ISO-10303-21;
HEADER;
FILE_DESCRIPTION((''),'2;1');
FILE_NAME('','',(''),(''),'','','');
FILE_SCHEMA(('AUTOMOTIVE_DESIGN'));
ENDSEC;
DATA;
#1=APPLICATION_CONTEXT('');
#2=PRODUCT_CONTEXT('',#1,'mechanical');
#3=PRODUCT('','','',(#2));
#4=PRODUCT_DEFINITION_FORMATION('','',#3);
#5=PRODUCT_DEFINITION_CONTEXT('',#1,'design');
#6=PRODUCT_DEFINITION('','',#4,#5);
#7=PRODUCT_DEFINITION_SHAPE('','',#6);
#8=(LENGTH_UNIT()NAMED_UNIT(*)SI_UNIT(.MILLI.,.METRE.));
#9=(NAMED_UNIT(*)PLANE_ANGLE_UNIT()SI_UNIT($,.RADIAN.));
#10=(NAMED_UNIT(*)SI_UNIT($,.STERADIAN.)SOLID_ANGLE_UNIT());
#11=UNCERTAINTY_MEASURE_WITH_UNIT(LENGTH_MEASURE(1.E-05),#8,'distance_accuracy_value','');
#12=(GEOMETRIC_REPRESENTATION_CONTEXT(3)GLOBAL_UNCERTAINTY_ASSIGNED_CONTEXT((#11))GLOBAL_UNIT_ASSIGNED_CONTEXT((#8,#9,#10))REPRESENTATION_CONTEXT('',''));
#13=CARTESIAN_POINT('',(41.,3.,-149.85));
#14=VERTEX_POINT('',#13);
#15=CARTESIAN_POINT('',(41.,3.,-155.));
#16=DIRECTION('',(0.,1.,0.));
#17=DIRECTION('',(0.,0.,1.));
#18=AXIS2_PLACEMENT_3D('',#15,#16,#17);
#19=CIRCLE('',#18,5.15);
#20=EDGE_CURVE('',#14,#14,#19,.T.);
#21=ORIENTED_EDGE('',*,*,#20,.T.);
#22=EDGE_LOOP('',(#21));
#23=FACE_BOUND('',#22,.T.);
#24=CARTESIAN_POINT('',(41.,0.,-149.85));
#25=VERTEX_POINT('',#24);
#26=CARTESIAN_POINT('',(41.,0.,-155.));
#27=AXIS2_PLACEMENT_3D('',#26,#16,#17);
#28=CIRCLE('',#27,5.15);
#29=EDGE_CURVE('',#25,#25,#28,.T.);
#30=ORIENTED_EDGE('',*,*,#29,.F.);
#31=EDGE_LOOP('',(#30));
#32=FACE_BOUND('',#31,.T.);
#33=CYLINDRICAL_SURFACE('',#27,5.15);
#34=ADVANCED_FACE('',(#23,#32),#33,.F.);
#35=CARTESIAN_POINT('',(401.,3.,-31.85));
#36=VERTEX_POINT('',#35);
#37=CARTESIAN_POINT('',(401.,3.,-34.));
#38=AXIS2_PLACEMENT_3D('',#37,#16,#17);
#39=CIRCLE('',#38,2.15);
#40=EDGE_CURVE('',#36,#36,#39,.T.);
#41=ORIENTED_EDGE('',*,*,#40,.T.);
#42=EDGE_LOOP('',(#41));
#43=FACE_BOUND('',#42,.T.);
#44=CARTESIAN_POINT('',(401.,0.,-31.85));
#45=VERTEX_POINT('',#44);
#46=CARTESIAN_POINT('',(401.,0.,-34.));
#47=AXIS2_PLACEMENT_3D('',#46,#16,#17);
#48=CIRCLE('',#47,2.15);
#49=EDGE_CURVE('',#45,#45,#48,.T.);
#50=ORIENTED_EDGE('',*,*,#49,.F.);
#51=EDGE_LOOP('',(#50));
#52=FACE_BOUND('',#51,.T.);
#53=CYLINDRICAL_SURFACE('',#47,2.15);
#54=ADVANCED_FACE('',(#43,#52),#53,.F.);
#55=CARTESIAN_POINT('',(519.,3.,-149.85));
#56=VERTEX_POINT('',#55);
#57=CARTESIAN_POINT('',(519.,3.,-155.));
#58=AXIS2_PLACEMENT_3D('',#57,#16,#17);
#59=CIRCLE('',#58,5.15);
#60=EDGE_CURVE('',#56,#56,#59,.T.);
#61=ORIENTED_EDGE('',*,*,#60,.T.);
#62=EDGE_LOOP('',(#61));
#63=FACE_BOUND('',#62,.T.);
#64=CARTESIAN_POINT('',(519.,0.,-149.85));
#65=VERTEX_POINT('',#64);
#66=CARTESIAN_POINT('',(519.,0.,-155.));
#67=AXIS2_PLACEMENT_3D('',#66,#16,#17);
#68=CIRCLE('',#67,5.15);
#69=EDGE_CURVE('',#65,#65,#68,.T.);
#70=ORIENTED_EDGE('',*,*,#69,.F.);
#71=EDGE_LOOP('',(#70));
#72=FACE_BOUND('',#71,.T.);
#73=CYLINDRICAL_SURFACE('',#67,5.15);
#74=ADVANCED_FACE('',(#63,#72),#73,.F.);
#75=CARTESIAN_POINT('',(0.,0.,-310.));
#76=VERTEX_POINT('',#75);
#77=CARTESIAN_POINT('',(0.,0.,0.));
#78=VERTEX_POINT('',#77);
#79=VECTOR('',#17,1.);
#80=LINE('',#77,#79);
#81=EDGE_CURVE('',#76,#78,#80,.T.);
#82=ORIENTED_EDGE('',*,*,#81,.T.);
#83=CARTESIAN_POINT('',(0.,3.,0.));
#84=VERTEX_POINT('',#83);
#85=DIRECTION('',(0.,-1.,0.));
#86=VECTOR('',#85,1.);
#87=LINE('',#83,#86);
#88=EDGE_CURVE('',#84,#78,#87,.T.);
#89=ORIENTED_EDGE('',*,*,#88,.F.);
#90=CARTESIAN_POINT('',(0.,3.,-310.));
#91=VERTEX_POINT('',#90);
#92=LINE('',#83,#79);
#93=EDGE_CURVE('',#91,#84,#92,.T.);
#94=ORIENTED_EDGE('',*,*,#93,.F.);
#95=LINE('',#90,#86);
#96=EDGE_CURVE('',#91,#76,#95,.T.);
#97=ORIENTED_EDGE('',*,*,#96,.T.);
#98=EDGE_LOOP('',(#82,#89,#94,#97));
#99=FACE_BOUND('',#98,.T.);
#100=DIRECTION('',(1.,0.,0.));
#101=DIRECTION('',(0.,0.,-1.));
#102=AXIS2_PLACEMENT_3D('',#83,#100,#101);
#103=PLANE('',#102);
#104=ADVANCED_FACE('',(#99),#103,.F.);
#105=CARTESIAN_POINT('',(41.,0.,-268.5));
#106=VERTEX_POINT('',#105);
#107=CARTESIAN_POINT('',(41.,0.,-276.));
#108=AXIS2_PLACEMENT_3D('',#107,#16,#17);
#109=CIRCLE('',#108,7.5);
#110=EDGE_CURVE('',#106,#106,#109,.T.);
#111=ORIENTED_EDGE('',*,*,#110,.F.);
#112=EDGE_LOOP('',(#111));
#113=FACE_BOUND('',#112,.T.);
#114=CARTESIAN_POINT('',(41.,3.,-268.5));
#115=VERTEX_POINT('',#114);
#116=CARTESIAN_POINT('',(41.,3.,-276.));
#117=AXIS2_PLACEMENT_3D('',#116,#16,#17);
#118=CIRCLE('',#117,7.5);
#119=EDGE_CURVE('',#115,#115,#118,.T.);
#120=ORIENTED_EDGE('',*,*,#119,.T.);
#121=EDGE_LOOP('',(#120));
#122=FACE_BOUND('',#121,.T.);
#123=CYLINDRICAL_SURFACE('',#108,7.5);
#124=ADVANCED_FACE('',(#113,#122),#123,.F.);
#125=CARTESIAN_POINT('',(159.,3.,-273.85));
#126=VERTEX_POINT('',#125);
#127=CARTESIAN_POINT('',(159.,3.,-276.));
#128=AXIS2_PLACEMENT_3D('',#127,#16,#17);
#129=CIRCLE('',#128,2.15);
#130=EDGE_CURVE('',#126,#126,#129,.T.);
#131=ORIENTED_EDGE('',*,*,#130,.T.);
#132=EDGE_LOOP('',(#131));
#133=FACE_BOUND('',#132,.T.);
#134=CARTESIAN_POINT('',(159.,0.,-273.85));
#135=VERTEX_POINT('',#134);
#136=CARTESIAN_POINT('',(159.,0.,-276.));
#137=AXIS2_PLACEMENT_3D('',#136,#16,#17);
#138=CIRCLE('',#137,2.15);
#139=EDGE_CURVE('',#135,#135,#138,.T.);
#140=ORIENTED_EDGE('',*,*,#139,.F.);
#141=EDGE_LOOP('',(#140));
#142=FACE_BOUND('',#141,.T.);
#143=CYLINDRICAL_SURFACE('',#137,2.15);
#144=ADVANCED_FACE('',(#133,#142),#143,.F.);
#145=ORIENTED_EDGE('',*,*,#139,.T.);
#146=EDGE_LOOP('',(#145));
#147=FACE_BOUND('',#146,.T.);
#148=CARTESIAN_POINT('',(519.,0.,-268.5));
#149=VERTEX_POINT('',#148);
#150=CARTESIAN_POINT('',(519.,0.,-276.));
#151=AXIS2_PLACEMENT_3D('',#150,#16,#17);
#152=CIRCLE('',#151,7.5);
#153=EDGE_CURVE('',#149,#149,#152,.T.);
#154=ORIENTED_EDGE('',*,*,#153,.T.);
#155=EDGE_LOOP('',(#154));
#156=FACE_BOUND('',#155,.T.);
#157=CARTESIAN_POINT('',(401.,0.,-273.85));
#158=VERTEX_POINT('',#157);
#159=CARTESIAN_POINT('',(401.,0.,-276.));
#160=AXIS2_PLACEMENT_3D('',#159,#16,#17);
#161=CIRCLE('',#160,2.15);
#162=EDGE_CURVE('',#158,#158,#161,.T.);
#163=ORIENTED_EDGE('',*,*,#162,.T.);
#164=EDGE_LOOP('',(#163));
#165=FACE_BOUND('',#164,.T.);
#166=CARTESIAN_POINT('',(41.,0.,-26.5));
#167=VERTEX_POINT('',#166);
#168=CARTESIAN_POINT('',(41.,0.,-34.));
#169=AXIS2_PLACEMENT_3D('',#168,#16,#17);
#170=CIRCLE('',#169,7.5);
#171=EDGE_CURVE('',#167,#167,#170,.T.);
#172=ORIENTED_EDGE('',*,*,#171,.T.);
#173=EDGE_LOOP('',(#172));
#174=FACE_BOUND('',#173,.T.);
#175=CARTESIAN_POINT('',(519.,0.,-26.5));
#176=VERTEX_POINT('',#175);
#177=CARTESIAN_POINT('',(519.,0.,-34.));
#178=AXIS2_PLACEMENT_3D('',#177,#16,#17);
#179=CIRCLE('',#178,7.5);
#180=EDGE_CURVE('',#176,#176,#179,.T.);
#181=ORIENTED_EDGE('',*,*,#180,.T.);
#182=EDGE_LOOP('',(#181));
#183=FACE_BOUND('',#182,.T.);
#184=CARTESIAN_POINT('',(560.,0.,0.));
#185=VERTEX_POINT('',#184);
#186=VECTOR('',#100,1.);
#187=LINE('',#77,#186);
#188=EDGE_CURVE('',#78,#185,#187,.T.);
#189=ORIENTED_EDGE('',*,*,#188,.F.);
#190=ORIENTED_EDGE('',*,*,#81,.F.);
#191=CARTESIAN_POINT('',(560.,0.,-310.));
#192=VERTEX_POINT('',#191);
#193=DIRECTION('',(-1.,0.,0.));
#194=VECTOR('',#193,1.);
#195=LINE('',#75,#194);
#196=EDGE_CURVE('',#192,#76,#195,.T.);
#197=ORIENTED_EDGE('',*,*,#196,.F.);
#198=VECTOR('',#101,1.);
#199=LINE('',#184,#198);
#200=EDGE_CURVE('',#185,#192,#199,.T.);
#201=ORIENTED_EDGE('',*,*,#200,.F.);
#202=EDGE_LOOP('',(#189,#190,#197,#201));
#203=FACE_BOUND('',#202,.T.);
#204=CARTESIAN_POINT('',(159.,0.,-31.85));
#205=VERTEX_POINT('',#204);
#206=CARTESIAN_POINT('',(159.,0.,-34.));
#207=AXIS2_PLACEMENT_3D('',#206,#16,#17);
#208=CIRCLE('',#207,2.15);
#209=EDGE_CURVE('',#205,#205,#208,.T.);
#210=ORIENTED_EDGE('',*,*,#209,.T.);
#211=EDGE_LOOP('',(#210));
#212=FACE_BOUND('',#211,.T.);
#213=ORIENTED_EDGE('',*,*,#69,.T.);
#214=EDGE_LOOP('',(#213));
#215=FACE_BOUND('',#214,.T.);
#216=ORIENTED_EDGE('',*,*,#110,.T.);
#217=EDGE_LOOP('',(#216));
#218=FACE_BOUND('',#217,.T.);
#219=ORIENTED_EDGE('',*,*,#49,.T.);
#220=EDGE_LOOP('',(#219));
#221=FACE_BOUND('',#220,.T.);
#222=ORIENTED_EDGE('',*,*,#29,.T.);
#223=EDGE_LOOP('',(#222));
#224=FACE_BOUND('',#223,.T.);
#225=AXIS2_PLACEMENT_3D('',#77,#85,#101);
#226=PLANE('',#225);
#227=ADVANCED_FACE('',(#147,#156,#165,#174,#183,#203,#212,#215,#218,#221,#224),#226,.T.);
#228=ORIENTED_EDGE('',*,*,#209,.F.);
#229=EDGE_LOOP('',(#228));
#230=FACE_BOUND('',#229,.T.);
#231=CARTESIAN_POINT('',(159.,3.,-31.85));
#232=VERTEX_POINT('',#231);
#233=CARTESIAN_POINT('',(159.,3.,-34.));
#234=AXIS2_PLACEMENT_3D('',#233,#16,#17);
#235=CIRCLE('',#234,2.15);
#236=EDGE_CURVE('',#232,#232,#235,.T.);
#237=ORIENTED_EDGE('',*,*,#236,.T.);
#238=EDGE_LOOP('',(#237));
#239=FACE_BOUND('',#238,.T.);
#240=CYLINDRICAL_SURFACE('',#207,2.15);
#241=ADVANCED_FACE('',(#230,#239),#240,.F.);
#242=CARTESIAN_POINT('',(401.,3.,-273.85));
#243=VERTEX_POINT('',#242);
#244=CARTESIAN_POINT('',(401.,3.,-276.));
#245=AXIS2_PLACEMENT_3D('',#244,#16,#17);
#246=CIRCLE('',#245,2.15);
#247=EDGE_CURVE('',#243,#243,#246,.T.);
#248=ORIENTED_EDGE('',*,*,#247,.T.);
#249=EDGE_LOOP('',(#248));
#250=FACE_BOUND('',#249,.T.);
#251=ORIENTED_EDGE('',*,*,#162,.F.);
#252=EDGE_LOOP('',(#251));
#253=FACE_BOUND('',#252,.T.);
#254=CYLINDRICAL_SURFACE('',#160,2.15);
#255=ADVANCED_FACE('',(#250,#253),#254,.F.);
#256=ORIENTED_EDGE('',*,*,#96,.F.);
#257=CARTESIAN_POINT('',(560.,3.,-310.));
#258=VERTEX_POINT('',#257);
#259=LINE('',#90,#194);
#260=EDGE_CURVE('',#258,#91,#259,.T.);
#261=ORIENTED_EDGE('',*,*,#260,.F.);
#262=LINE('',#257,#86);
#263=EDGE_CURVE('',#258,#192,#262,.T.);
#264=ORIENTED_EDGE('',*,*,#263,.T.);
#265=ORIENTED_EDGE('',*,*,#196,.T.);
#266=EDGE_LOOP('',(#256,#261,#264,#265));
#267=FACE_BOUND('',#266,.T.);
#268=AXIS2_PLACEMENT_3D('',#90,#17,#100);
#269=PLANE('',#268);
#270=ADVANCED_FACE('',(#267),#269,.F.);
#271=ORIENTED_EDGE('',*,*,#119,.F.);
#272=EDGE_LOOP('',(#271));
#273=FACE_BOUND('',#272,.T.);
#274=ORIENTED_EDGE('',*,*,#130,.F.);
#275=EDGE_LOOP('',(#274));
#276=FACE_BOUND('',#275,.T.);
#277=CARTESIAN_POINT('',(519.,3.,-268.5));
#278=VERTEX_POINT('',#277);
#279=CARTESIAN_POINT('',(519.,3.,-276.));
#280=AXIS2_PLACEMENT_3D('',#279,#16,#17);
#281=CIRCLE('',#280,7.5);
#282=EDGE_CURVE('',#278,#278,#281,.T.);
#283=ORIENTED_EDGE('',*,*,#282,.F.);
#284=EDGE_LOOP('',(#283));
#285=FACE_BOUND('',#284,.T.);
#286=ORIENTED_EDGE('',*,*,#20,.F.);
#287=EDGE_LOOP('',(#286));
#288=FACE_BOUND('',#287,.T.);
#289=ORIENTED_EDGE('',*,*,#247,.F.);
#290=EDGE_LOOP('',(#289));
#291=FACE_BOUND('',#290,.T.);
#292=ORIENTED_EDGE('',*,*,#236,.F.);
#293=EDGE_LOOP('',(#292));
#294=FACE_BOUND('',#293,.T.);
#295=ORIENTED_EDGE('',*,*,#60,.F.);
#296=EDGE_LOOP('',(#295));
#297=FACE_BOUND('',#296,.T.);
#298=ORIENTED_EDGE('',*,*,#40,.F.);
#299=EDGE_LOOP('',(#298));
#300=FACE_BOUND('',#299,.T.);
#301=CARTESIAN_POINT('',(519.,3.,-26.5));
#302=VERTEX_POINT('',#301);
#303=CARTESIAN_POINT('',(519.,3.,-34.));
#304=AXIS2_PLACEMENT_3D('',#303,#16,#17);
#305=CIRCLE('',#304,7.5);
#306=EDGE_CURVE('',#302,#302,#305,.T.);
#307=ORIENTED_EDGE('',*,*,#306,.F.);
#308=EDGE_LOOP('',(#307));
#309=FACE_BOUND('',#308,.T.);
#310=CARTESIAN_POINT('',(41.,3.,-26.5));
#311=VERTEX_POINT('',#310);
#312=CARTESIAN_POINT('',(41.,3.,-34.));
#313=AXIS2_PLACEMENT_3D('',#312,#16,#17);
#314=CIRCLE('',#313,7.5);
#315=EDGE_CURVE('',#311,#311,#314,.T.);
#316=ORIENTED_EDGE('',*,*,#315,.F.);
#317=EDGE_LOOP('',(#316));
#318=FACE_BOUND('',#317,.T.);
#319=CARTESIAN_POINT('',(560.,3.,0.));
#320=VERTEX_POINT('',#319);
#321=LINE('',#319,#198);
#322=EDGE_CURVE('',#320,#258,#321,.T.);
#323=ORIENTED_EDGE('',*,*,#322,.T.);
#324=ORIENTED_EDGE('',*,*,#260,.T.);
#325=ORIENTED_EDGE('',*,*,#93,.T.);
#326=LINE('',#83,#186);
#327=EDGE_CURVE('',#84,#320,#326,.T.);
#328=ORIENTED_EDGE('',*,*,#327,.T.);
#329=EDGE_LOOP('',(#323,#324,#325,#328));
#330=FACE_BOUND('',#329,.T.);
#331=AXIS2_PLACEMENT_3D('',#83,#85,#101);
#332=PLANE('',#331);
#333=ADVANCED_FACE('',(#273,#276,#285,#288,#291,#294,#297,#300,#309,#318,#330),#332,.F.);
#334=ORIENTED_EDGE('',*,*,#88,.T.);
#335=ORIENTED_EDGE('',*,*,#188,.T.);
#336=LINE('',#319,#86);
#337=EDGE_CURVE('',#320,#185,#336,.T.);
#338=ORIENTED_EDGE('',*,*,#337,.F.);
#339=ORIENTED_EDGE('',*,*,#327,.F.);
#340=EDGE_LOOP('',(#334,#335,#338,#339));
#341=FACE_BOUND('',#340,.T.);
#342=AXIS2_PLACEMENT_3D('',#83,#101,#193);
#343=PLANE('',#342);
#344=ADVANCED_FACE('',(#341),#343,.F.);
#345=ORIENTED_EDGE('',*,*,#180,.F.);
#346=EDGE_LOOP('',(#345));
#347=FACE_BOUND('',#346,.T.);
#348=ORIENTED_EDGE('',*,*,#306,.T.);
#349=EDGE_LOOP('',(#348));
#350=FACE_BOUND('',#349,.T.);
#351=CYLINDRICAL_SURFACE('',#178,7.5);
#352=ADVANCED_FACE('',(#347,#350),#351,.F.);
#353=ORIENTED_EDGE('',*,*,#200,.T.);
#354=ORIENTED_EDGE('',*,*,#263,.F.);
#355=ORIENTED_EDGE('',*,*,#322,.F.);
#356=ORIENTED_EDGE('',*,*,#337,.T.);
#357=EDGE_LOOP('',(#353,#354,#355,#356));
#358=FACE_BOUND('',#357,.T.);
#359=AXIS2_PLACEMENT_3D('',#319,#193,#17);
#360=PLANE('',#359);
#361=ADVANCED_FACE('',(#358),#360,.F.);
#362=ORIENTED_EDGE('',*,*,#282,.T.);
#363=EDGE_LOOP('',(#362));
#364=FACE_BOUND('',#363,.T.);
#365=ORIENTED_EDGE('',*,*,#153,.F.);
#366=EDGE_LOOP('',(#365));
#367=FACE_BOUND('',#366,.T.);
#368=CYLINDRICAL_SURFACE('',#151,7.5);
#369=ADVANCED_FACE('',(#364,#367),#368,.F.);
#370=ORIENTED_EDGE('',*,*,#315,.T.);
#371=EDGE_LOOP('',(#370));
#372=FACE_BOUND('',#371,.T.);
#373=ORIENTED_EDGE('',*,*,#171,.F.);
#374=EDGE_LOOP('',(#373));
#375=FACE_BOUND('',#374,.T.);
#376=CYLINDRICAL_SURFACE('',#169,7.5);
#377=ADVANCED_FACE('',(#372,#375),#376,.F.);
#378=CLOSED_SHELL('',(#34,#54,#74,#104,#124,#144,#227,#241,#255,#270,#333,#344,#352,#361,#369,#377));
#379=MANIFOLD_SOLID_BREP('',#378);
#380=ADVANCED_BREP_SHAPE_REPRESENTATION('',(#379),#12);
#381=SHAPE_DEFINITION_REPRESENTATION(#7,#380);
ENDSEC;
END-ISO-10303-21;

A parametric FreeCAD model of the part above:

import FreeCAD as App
import Part
import Sketcher

V = App.Vector
Q = App.Units.Quantity

doc = App.newDocument("Part")
body = doc.addObject("PartDesign::Body", "Body")

# Sketch on XZ plane
sketch1 = body.newObject("Sketcher::SketchObject", "Sketch")
sketch1.AttachmentSupport = (doc.getObject("XZ_Plane"), [""])
sketch1.MapMode = "FlatFace"
sketch1.addGeometry(Part.LineSegment(V(0, -310, 0), V(0, 0, 0)), False)
sketch1.addGeometry(Part.LineSegment(V(0, 0, 0), V(560, 0, 0)), False)
sketch1.addGeometry(Part.LineSegment(V(560, 0, 0), V(560, -310, 0)), False)
sketch1.addGeometry(Part.LineSegment(V(560, -310, 0), V(0, -310, 0)), False)
sketch1.addConstraint(Sketcher.Constraint("Coincident", 0, 2, 1, 1))
sketch1.addConstraint(Sketcher.Constraint("Coincident", 1, 2, 2, 1))
sketch1.addConstraint(Sketcher.Constraint("Coincident", 2, 2, 3, 1))
sketch1.addConstraint(Sketcher.Constraint("Coincident", 3, 2, 0, 1))
sketch1.addConstraint(Sketcher.Constraint("Vertical", 0))
sketch1.addConstraint(Sketcher.Constraint("Horizontal", 1))
sketch1.addConstraint(Sketcher.Constraint("Vertical", 2))
sketch1.addConstraint(Sketcher.Constraint("Horizontal", 3))
sketch1.addConstraint(Sketcher.Constraint("Coincident", 0, 2, -1, 1))
sketch1.addConstraint(Sketcher.Constraint("DistanceX", 1, 1, 1, 2, Q("560 mm")))
sketch1.addConstraint(Sketcher.Constraint("DistanceY", 0, 1, 0, 2, Q("310 mm")))
pad1 = body.newObject("PartDesign::Pad", "Pad")
pad1.Profile = sketch1
pad1.Length = 3
pad1.Reversed = True

# Sketch on XZ plane
sketch2 = body.newObject("Sketcher::SketchObject", "Sketch001")
sketch2.AttachmentSupport = (doc.getObject("XZ_Plane"), [""])
sketch2.MapMode = "FlatFace"
sketch2.AttachmentOffset = App.Placement(V(0, 0, -3), App.Rotation())
sketch2.addGeometry(Part.Circle(V(159, -276, 0), V(0, 0, 1), 2.1), False)
sketch2.addGeometry(Part.Circle(V(401, -276, 0), V(0, 0, 1), 2.1), False)
sketch2.addGeometry(Part.Circle(V(401, -34, 0), V(0, 0, 1), 2.1), False)
sketch2.addGeometry(Part.Circle(V(159, -34, 0), V(0, 0, 1), 2.1), False)
sketch2.addConstraint(Sketcher.Constraint("Equal", 0, 1))
sketch2.addConstraint(Sketcher.Constraint("Equal", 1, 2))
sketch2.addConstraint(Sketcher.Constraint("Equal", 2, 3))
sketch2.addConstraint(Sketcher.Constraint("Horizontal", 0, 3, 1, 3))
sketch2.addConstraint(Sketcher.Constraint("Horizontal", 2, 3, 3, 3))
sketch2.addConstraint(Sketcher.Constraint("Vertical", 1, 3, 2, 3))
sketch2.addConstraint(Sketcher.Constraint("Vertical", 0, 3, 3, 3))
sketch2.addConstraint(Sketcher.Constraint("Diameter", 0, Q("4.3 mm")))
sketch2.addConstraint(Sketcher.Constraint("DistanceX", -1, 1, 0, 3, Q("159 mm")))
sketch2.addConstraint(Sketcher.Constraint("DistanceY", 0, 3, -1, 1, Q("276 mm")))
sketch2.addConstraint(Sketcher.Constraint("DistanceX", -1, 1, 1, 3, Q("401 mm")))
sketch2.addConstraint(Sketcher.Constraint("DistanceY", 2, 3, -1, 1, Q("34 mm")))
pocket1 = body.newObject("PartDesign::Pocket", "Pocket")
pocket1.Profile = sketch2
pocket1.Type = "ThroughAll"
pocket1.Reversed = True

# Sketch on XZ plane
sketch3 = body.newObject("Sketcher::SketchObject", "Sketch002")
sketch3.AttachmentSupport = (doc.getObject("XZ_Plane"), [""])
sketch3.MapMode = "FlatFace"
sketch3.AttachmentOffset = App.Placement(V(0, 0, -3), App.Rotation())
sketch3.addGeometry(Part.Circle(V(41, -155, 0), V(0, 0, 1), 5), False)
sketch3.addGeometry(Part.Circle(V(519, -155, 0), V(0, 0, 1), 5), False)
sketch3.addConstraint(Sketcher.Constraint("Equal", 0, 1))
sketch3.addConstraint(Sketcher.Constraint("Horizontal", 0, 3, 1, 3))
sketch3.addConstraint(Sketcher.Constraint("Diameter", 0, Q("10.3 mm")))
sketch3.addConstraint(Sketcher.Constraint("DistanceX", -1, 1, 0, 3, Q("41 mm")))
sketch3.addConstraint(Sketcher.Constraint("DistanceY", 0, 3, -1, 1, Q("155 mm")))
sketch3.addConstraint(Sketcher.Constraint("DistanceX", -1, 1, 1, 3, Q("519 mm")))
pocket2 = body.newObject("PartDesign::Pocket", "Pocket001")
pocket2.Profile = sketch3
pocket2.Type = "ThroughAll"
pocket2.Reversed = True

# Sketch on XZ plane
sketch4 = body.newObject("Sketcher::SketchObject", "Sketch003")
sketch4.AttachmentSupport = (doc.getObject("XZ_Plane"), [""])
sketch4.MapMode = "FlatFace"
sketch4.AttachmentOffset = App.Placement(V(0, 0, -3), App.Rotation())
sketch4.addGeometry(Part.Circle(V(41, -34, 0), V(0, 0, 1), 8), False)
sketch4.addGeometry(Part.Circle(V(41, -276, 0), V(0, 0, 1), 8), False)
sketch4.addGeometry(Part.Circle(V(519, -276, 0), V(0, 0, 1), 8), False)
sketch4.addGeometry(Part.Circle(V(519, -34, 0), V(0, 0, 1), 8), False)
sketch4.addConstraint(Sketcher.Constraint("Equal", 0, 1))
sketch4.addConstraint(Sketcher.Constraint("Equal", 1, 2))
sketch4.addConstraint(Sketcher.Constraint("Equal", 2, 3))
sketch4.addConstraint(Sketcher.Constraint("Horizontal", 1, 3, 2, 3))
sketch4.addConstraint(Sketcher.Constraint("Horizontal", 0, 3, 3, 3))
sketch4.addConstraint(Sketcher.Constraint("Vertical", 0, 3, 1, 3))
sketch4.addConstraint(Sketcher.Constraint("Vertical", 2, 3, 3, 3))
sketch4.addConstraint(Sketcher.Constraint("Diameter", 0, Q("15 mm")))
sketch4.addConstraint(Sketcher.Constraint("DistanceX", -1, 1, 0, 3, Q("41 mm")))
sketch4.addConstraint(Sketcher.Constraint("DistanceY", 0, 3, -1, 1, Q("34 mm")))
sketch4.addConstraint(Sketcher.Constraint("DistanceY", 1, 3, -1, 1, Q("276 mm")))
sketch4.addConstraint(Sketcher.Constraint("DistanceX", -1, 1, 2, 3, Q("519 mm")))
pocket3 = body.newObject("PartDesign::Pocket", "Pocket002")
pocket3.Profile = sketch4
pocket3.Type = "ThroughAll"
pocket3.Reversed = True

doc.recompute()
